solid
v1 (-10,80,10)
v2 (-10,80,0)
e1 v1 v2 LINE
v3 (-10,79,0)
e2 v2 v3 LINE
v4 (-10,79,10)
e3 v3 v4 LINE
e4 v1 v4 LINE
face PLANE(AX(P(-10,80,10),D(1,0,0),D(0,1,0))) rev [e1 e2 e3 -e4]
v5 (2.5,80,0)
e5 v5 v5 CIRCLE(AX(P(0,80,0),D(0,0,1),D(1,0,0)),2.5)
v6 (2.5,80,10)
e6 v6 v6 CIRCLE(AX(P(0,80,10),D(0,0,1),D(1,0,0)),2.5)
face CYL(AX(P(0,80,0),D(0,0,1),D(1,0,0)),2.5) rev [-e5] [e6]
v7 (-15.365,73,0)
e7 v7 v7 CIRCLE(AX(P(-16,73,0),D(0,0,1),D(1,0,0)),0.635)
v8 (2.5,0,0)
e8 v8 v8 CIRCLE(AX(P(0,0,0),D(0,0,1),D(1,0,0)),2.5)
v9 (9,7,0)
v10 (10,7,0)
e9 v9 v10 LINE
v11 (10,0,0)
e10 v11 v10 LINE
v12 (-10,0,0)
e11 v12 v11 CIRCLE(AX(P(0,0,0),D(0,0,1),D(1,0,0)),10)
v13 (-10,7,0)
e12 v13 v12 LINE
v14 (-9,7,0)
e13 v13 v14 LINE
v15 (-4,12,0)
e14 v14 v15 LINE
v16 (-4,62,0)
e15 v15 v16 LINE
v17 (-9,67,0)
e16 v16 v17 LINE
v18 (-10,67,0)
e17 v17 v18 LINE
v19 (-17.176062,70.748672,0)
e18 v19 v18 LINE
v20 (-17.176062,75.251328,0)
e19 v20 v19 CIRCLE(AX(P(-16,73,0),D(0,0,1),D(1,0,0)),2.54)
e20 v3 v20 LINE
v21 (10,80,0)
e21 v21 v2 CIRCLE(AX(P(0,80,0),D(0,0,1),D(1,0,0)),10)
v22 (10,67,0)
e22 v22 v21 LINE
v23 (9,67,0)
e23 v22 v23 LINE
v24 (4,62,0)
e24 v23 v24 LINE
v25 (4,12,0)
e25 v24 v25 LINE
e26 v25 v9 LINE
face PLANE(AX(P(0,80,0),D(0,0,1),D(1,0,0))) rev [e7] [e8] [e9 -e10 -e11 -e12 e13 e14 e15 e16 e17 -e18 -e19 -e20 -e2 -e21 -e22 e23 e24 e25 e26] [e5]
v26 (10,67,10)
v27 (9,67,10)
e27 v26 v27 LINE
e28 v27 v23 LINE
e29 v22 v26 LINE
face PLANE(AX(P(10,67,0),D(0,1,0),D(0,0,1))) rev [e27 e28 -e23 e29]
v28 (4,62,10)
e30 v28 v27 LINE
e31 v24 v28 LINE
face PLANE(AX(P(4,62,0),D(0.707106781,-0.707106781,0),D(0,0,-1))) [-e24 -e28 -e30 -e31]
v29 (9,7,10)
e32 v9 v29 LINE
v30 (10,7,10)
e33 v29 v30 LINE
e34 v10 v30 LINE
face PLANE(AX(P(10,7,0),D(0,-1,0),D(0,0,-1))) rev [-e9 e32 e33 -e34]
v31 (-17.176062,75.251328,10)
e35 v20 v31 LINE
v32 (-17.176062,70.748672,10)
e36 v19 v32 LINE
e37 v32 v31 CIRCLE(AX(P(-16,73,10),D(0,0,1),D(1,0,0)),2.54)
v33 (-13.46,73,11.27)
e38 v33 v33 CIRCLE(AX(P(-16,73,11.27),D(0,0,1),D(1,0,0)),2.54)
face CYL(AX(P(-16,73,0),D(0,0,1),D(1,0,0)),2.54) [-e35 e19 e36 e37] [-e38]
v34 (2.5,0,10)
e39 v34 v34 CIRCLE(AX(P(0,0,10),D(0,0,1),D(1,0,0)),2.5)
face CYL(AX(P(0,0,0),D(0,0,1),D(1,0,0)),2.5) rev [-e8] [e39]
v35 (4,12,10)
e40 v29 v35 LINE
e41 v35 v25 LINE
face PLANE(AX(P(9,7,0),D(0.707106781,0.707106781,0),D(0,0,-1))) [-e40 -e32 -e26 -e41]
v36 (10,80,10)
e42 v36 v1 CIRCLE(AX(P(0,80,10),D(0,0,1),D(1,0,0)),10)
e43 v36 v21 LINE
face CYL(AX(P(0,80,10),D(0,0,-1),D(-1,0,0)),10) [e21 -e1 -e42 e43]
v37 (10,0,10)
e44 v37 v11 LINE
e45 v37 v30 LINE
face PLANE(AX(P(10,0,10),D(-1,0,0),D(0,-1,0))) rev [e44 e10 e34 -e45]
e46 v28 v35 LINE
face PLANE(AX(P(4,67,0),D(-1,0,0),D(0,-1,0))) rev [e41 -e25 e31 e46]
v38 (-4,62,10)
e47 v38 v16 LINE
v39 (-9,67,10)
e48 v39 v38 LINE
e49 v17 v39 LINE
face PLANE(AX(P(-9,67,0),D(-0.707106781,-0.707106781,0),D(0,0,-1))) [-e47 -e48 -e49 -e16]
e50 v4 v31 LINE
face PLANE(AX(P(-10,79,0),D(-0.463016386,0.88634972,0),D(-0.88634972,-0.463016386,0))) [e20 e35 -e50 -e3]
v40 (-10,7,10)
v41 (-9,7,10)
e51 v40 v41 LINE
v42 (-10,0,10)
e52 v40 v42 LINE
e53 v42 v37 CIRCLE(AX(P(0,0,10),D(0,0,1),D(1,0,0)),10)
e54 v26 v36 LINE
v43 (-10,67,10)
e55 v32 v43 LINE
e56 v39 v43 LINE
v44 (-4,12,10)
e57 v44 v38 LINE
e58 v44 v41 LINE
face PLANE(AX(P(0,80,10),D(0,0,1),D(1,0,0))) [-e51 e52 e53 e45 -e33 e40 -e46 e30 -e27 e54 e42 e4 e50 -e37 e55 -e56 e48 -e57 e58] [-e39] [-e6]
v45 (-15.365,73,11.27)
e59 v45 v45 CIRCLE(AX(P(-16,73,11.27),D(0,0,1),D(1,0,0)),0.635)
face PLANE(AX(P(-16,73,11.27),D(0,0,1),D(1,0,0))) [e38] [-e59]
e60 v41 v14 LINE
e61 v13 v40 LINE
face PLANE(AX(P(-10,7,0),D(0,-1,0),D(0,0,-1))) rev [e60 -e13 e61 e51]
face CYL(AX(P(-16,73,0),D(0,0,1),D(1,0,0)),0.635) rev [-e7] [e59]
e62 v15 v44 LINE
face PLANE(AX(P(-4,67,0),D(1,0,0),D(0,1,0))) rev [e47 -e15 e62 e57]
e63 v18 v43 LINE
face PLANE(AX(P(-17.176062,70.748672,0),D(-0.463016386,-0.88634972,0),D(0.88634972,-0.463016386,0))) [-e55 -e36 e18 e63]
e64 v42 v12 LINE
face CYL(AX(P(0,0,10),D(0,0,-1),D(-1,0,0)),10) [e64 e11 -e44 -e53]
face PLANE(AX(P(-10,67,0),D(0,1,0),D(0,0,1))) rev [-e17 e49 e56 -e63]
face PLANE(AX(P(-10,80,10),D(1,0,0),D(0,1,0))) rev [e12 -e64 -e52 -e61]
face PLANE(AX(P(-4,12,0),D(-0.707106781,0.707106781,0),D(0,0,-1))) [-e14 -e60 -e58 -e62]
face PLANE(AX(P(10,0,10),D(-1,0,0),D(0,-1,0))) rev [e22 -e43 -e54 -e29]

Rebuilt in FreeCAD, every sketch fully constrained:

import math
import FreeCAD as App
import Part
import Sketcher

V = App.Vector
Q = App.Units.Quantity


def edges_at(feature, points):
    """Names of the edges that pass closest to the given points."""
    edges = feature.Shape.Edges
    near = lambda p: min(range(len(edges)), key=lambda i: edges[i].distToShape(Part.Vertex(*p))[0])
    return sorted({f"Edge{near(p) + 1}" for p in points})

doc = App.newDocument("Part")
params = doc.addObject("Spreadsheet::Sheet", "Params")
for row, (alias, value) in enumerate([
    ("sketch1_radius", "10 mm"),
    ("sketch1_height", "80 mm"),
    ("pad1_length", "10 mm"),
    ("sketch2_diameter", "5 mm"),
    ("sketch3_height", "12 mm"),
    ("sketch3_radius", "2.54 mm"),
    ("pad2_length", "10 mm"),
    ("sketch4_diameter", "1.27 mm"),
    ("sketch5_diameter", "5.08 mm"),
    ("sketch5_diameter2", "1.27 mm"),
    ("pad3_length", "1.27 mm"),
    ("sketch6_width", "6 mm"),
    ("sketch6_height", "60 mm"),
    ("chamfer_size", "5 mm"),
], start=1):
    params.set(f"A{row}", alias)
    params.set(f"B{row}", "=" + value)
    params.setAlias(f"B{row}", alias)

body = doc.addObject("PartDesign::Body", "Body")

# Sketch on XY plane
sketch1 = body.newObject("Sketcher::SketchObject", "Sketch")
sketch1.AttachmentSupport = (doc.getObject("XY_Plane"), [""])
sketch1.MapMode = "FlatFace"
sketch1.addGeometry([
    Part.LineSegment(V(-10, 80, 0), V(-10, 0, 0)),
    Part.ArcOfCircle(Part.Circle(V(0, 0, 0), V(0, 0, 1), 10), math.radians(180), math.radians(360)),
    Part.LineSegment(V(10, 0, 0), V(10, 80, 0)),
    Part.ArcOfCircle(Part.Circle(V(0, 80, 0), V(0, 0, 1), 10), math.radians(0), math.radians(180)),
], False)
sketch1.addConstraint([
    Sketcher.Constraint("Tangent", 0, 2, 1, 1),
    Sketcher.Constraint("Tangent", 1, 2, 2, 1),
    Sketcher.Constraint("Tangent", 2, 2, 3, 1),
    Sketcher.Constraint("Tangent", 3, 2, 0, 1),
    Sketcher.Constraint("Vertical", 0),
    Sketcher.Constraint("Vertical", 2),
    Sketcher.Constraint("Coincident", 1, 3, -1, 1),
    Sketcher.Constraint("Radius", 1, Q("10 mm")),
    Sketcher.Constraint("DistanceY", 0, 2, 0, 1, Q("80 mm")),
])
sketch1.setExpression("Constraints[7]", "Params.sketch1_radius")
sketch1.setExpression("Constraints[8]", "Params.sketch1_height")
pad1 = body.newObject("PartDesign::Pad", "Pad")
pad1.Profile = sketch1
pad1.setExpression("Length", "Params.pad1_length")

# Sketch on XY plane
sketch2 = body.newObject("Sketcher::SketchObject", "Sketch001")
sketch2.AttachmentSupport = (doc.getObject("XY_Plane"), [""])
sketch2.MapMode = "FlatFace"
sketch2.AttachmentOffset = App.Placement(V(0, 0, 10), App.Rotation())
sketch2.addGeometry([
    Part.Circle(V(0, 0, 0), V(0, 0, 1), 2.5),
    Part.Circle(V(0, 80, 0), V(0, 0, 1), 2.5),
], False)
sketch2.addConstraint([
    Sketcher.Constraint("Coincident", 0, 3, -1, 1),
    Sketcher.Constraint("Equal", 0, 1),
    Sketcher.Constraint("PointOnObject", 1, 3, -2),
    Sketcher.Constraint("Diameter", 0, Q("5 mm")),
    Sketcher.Constraint("DistanceY", -1, 1, 1, 3, Q("80 mm")),
])
sketch2.setExpression("Constraints[3]", "Params.sketch2_diameter")
pocket1 = body.newObject("PartDesign::Pocket", "Pocket")
pocket1.Profile = sketch2
pocket1.Type = "ThroughAll"

# Sketch on XY plane
sketch3 = body.newObject("Sketcher::SketchObject", "Sketch002")
sketch3.AttachmentSupport = (doc.getObject("XY_Plane"), [""])
sketch3.MapMode = "FlatFace"
sketch3.AttachmentOffset = App.Placement(V(0, 0, 10), App.Rotation())
sketch3.addGeometry([
    Part.LineSegment(V(-10, 79, 0), V(-17.2, 75.3, 0)),
    Part.ArcOfCircle(Part.Circle(V(-16, 73, 0), V(0, 0, 1), 2.5), math.radians(118), math.radians(242)),
    Part.LineSegment(V(-17.2, 70.7, 0), V(-10, 67, 0)),
    Part.LineSegment(V(-10, 67, 0), V(-10, 79, 0)),
], False)
sketch3.addConstraint([
    Sketcher.Constraint("Tangent", 0, 2, 1, 1),
    Sketcher.Constraint("Tangent", 1, 2, 2, 1),
    Sketcher.Constraint("Coincident", 2, 2, 3, 1),
    Sketcher.Constraint("Coincident", 3, 2, 0, 1),
    Sketcher.Constraint("Vertical", 3),
    Sketcher.Constraint("Vertical", 0, 2, 1, 2),
    Sketcher.Constraint("DistanceY", 3, 1, 3, 2, Q("12 mm")),
    Sketcher.Constraint("Radius", 1, Q("2.54 mm")),
    Sketcher.Constraint("DistanceX", 1, 3, -1, 1, Q("16 mm")),
    Sketcher.Constraint("DistanceY", -1, 1, 1, 3, Q("73 mm")),
    Sketcher.Constraint("DistanceX", 2, 2, -1, 1, Q("10 mm")),
])
sketch3.setExpression("Constraints[6]", "Params.sketch3_height")
sketch3.setExpression("Constraints[7]", "Params.sketch3_radius")
pad2 = body.newObject("PartDesign::Pad", "Pad001")
pad2.Profile = sketch3
pad2.setExpression("Length", "Params.pad2_length")
pad2.Reversed = True

# Sketch on XY plane
sketch4 = body.newObject("Sketcher::SketchObject", "Sketch003")
sketch4.AttachmentSupport = (doc.getObject("XY_Plane"), [""])
sketch4.MapMode = "FlatFace"
sketch4.AttachmentOffset = App.Placement(V(0, 0, 10), App.Rotation())
sketch4.addGeometry(Part.Circle(V(-16, 73, 0), V(0, 0, 1), 0.6), False)
sketch4.addConstraint([
    Sketcher.Constraint("Diameter", 0, Q("1.27 mm")),
    Sketcher.Constraint("DistanceX", 0, 3, -1, 1, Q("16 mm")),
    Sketcher.Constraint("DistanceY", -1, 1, 0, 3, Q("73 mm")),
])
sketch4.setExpression("Constraints[0]", "Params.sketch4_diameter")
pocket2 = body.newObject("PartDesign::Pocket", "Pocket001")
pocket2.Profile = sketch4
pocket2.Type = "ThroughAll"

# Sketch on XY plane
sketch5 = body.newObject("Sketcher::SketchObject", "Sketch004")
sketch5.AttachmentSupport = (doc.getObject("XY_Plane"), [""])
sketch5.MapMode = "FlatFace"
sketch5.AttachmentOffset = App.Placement(V(0, 0, 10), App.Rotation())
sketch5.addGeometry([
    Part.Circle(V(-16, 73, 0), V(0, 0, 1), 2.5),
    Part.Circle(V(-16, 73, 0), V(0, 0, 1), 0.6),
], False)
sketch5.addConstraint([
    Sketcher.Constraint("Coincident", 1, 3, 0, 3),
    Sketcher.Constraint("Diameter", 0, Q("5.08 mm")),
    Sketcher.Constraint("Diameter", 1, Q("1.27 mm")),
    Sketcher.Constraint("DistanceX", 0, 3, -1, 1, Q("16 mm")),
    Sketcher.Constraint("DistanceY", -1, 1, 0, 3, Q("73 mm")),
])
sketch5.setExpression("Constraints[1]", "Params.sketch5_diameter")
sketch5.setExpression("Constraints[2]", "Params.sketch5_diameter2")
pad3 = body.newObject("PartDesign::Pad", "Pad002")
pad3.Profile = sketch5
pad3.setExpression("Length", "Params.pad3_length")

# Sketch on XY plane
sketch6 = body.newObject("Sketcher::SketchObject", "Sketch005")
sketch6.AttachmentSupport = (doc.getObject("XY_Plane"), [""])
sketch6.MapMode = "FlatFace"
sketch6.AttachmentOffset = App.Placement(V(0, 0, 10), App.Rotation())
sketch6.addGeometry([
    Part.LineSegment(V(-10, 67, 0), V(-10, 7, 0)),  # 0
    Part.LineSegment(V(-10, 7, 0), V(-4, 7, 0)),  # 1
    Part.LineSegment(V(-4, 7, 0), V(-4, 67, 0)),  # 2
    Part.LineSegment(V(-4, 67, 0), V(-10, 67, 0)),  # 3
    Part.LineSegment(V(4, 67, 0), V(4, 7, 0)),  # 4
    Part.LineSegment(V(4, 7, 0), V(10, 7, 0)),  # 5
    Part.LineSegment(V(10, 7, 0), V(10, 67, 0)),  # 6
    Part.LineSegment(V(10, 67, 0), V(4, 67, 0)),  # 7
], False)
sketch6.addConstraint([
    Sketcher.Constraint("Coincident", 0, 2, 1, 1),
    Sketcher.Constraint("Coincident", 1, 2, 2, 1),
    Sketcher.Constraint("Coincident", 2, 2, 3, 1),
    Sketcher.Constraint("Coincident", 3, 2, 0, 1),
    Sketcher.Constraint("Coincident", 4, 2, 5, 1),
    Sketcher.Constraint("Coincident", 5, 2, 6, 1),
    Sketcher.Constraint("Coincident", 6, 2, 7, 1),
    Sketcher.Constraint("Coincident", 7, 2, 4, 1),
    Sketcher.Constraint("Vertical", 0),
    Sketcher.Constraint("Horizontal", 1),
    Sketcher.Constraint("Vertical", 2),
    Sketcher.Constraint("Horizontal", 3),
    Sketcher.Constraint("Vertical", 4),
    Sketcher.Constraint("Horizontal", 5),
    Sketcher.Constraint("Vertical", 6),
    Sketcher.Constraint("Horizontal", 7),
    Sketcher.Constraint("Symmetric", 1, 2, 4, 2, -2),
    Sketcher.Constraint("Symmetric", 3, 2, 6, 2, -2),
    Sketcher.Constraint("DistanceX", 1, 1, 1, 2, Q("6 mm")),
    Sketcher.Constraint("DistanceY", 0, 2, 0, 1, Q("60 mm")),
    Sketcher.Constraint("DistanceX", 0, 2, -1, 1, Q("10 mm")),
    Sketcher.Constraint("DistanceY", -1, 1, 0, 2, Q("7 mm")),
])
sketch6.setExpression("Constraints[18]", "Params.sketch6_width")
sketch6.setExpression("Constraints[19]", "Params.sketch6_height")
pocket3 = body.newObject("PartDesign::Pocket", "Pocket002")
pocket3.Profile = sketch6
pocket3.Type = "ThroughAll"
pocket3.Midplane = True
doc.recompute()

chamfer = body.newObject("PartDesign::Chamfer", "Chamfer")
chamfer.Base = (pocket3, edges_at(pocket3, [
    (-4, 67, 5),
    (-4, 7, 5),
    (4, 7, 5),
    (4, 67, 5),
]))
chamfer.setExpression("Size", "Params.chamfer_size")

doc.recompute()
